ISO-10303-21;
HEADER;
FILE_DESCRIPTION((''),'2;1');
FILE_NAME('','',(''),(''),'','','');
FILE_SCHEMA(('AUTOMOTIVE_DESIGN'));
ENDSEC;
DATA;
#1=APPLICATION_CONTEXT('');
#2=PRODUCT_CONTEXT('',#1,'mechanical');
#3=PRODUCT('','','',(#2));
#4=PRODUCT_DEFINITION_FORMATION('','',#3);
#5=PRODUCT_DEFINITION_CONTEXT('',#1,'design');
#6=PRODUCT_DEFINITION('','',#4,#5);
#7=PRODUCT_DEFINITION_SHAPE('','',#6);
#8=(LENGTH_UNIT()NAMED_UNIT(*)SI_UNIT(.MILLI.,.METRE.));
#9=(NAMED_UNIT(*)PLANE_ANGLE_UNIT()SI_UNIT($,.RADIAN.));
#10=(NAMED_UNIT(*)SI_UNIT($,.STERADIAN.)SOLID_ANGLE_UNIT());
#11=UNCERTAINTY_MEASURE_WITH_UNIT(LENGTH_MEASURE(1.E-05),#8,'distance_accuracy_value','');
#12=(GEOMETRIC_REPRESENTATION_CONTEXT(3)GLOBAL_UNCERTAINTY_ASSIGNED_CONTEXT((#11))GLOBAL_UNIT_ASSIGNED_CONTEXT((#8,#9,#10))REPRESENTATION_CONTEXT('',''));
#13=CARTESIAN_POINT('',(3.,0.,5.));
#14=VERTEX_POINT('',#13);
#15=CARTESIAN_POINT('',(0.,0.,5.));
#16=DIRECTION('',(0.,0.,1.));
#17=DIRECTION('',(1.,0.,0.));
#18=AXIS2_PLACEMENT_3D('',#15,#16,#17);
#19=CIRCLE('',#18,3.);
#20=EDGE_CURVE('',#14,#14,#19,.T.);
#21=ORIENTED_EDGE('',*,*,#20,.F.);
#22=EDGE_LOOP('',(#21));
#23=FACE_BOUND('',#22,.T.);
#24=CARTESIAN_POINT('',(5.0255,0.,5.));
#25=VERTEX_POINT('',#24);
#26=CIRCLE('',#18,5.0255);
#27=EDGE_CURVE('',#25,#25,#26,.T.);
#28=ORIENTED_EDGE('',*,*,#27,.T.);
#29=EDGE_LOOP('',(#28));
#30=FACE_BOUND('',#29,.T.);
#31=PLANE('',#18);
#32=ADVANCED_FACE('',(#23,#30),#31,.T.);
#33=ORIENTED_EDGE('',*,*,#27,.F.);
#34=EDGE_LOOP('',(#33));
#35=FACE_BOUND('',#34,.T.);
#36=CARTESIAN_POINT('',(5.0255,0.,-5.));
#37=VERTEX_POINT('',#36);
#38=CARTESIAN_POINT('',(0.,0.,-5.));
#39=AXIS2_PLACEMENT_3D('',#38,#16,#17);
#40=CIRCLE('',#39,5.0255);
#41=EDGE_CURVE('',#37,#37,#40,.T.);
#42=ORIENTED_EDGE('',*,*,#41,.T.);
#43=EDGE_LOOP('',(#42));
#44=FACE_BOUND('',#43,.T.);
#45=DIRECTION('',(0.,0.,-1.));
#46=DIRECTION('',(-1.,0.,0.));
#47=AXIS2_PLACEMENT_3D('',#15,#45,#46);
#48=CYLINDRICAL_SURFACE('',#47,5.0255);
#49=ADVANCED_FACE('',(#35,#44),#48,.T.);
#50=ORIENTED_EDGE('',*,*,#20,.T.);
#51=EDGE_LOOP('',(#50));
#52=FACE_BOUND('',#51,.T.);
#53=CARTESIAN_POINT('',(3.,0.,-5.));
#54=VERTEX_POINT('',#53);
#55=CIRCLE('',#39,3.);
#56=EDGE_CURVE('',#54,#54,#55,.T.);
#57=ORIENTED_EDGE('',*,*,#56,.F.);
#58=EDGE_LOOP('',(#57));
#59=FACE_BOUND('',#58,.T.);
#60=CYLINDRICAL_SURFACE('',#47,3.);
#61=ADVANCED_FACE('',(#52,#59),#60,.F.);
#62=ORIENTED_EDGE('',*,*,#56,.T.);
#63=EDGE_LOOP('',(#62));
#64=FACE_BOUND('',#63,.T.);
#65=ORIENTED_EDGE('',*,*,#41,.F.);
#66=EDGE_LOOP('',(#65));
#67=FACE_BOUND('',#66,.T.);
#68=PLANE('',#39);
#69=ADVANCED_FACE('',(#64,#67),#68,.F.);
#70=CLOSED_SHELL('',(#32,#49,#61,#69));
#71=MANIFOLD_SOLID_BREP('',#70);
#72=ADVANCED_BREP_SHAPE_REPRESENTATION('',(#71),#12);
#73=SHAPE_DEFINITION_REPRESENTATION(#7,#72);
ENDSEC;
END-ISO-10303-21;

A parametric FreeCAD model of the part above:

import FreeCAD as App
import Part
import Sketcher

V = App.Vector

doc = App.newDocument("Part")
body = doc.addObject("PartDesign::Body", "Body")

# Sketch on XY plane
sketch1 = body.newObject("Sketcher::SketchObject", "Sketch")
sketch1.AttachmentSupport = (doc.getObject("XY_Plane"), [""])
sketch1.MapMode = "FlatFace"
sketch1.addGeometry([
    Part.Circle(V(0, 0, 0), V(0, 0, 1), 5),
    Part.Circle(V(0, 0, 0), V(0, 0, 1), 3),
], False)
sketch1.addConstraint([
    Sketcher.Constraint("Coincident", 0, 3, -1, 1),
    Sketcher.Constraint("Coincident", 1, 3, -1, 1),
    Sketcher.Constraint("Diameter", 1, 6.0),
    Sketcher.Constraint("Diameter", 0, 10.051),
])
pad1 = body.newObject("PartDesign::Pad", "Pad")
pad1.Profile = sketch1
pad1.Type = "TwoLengths"
pad1.Length = 5
pad1.Length2 = 5

doc.recompute()
